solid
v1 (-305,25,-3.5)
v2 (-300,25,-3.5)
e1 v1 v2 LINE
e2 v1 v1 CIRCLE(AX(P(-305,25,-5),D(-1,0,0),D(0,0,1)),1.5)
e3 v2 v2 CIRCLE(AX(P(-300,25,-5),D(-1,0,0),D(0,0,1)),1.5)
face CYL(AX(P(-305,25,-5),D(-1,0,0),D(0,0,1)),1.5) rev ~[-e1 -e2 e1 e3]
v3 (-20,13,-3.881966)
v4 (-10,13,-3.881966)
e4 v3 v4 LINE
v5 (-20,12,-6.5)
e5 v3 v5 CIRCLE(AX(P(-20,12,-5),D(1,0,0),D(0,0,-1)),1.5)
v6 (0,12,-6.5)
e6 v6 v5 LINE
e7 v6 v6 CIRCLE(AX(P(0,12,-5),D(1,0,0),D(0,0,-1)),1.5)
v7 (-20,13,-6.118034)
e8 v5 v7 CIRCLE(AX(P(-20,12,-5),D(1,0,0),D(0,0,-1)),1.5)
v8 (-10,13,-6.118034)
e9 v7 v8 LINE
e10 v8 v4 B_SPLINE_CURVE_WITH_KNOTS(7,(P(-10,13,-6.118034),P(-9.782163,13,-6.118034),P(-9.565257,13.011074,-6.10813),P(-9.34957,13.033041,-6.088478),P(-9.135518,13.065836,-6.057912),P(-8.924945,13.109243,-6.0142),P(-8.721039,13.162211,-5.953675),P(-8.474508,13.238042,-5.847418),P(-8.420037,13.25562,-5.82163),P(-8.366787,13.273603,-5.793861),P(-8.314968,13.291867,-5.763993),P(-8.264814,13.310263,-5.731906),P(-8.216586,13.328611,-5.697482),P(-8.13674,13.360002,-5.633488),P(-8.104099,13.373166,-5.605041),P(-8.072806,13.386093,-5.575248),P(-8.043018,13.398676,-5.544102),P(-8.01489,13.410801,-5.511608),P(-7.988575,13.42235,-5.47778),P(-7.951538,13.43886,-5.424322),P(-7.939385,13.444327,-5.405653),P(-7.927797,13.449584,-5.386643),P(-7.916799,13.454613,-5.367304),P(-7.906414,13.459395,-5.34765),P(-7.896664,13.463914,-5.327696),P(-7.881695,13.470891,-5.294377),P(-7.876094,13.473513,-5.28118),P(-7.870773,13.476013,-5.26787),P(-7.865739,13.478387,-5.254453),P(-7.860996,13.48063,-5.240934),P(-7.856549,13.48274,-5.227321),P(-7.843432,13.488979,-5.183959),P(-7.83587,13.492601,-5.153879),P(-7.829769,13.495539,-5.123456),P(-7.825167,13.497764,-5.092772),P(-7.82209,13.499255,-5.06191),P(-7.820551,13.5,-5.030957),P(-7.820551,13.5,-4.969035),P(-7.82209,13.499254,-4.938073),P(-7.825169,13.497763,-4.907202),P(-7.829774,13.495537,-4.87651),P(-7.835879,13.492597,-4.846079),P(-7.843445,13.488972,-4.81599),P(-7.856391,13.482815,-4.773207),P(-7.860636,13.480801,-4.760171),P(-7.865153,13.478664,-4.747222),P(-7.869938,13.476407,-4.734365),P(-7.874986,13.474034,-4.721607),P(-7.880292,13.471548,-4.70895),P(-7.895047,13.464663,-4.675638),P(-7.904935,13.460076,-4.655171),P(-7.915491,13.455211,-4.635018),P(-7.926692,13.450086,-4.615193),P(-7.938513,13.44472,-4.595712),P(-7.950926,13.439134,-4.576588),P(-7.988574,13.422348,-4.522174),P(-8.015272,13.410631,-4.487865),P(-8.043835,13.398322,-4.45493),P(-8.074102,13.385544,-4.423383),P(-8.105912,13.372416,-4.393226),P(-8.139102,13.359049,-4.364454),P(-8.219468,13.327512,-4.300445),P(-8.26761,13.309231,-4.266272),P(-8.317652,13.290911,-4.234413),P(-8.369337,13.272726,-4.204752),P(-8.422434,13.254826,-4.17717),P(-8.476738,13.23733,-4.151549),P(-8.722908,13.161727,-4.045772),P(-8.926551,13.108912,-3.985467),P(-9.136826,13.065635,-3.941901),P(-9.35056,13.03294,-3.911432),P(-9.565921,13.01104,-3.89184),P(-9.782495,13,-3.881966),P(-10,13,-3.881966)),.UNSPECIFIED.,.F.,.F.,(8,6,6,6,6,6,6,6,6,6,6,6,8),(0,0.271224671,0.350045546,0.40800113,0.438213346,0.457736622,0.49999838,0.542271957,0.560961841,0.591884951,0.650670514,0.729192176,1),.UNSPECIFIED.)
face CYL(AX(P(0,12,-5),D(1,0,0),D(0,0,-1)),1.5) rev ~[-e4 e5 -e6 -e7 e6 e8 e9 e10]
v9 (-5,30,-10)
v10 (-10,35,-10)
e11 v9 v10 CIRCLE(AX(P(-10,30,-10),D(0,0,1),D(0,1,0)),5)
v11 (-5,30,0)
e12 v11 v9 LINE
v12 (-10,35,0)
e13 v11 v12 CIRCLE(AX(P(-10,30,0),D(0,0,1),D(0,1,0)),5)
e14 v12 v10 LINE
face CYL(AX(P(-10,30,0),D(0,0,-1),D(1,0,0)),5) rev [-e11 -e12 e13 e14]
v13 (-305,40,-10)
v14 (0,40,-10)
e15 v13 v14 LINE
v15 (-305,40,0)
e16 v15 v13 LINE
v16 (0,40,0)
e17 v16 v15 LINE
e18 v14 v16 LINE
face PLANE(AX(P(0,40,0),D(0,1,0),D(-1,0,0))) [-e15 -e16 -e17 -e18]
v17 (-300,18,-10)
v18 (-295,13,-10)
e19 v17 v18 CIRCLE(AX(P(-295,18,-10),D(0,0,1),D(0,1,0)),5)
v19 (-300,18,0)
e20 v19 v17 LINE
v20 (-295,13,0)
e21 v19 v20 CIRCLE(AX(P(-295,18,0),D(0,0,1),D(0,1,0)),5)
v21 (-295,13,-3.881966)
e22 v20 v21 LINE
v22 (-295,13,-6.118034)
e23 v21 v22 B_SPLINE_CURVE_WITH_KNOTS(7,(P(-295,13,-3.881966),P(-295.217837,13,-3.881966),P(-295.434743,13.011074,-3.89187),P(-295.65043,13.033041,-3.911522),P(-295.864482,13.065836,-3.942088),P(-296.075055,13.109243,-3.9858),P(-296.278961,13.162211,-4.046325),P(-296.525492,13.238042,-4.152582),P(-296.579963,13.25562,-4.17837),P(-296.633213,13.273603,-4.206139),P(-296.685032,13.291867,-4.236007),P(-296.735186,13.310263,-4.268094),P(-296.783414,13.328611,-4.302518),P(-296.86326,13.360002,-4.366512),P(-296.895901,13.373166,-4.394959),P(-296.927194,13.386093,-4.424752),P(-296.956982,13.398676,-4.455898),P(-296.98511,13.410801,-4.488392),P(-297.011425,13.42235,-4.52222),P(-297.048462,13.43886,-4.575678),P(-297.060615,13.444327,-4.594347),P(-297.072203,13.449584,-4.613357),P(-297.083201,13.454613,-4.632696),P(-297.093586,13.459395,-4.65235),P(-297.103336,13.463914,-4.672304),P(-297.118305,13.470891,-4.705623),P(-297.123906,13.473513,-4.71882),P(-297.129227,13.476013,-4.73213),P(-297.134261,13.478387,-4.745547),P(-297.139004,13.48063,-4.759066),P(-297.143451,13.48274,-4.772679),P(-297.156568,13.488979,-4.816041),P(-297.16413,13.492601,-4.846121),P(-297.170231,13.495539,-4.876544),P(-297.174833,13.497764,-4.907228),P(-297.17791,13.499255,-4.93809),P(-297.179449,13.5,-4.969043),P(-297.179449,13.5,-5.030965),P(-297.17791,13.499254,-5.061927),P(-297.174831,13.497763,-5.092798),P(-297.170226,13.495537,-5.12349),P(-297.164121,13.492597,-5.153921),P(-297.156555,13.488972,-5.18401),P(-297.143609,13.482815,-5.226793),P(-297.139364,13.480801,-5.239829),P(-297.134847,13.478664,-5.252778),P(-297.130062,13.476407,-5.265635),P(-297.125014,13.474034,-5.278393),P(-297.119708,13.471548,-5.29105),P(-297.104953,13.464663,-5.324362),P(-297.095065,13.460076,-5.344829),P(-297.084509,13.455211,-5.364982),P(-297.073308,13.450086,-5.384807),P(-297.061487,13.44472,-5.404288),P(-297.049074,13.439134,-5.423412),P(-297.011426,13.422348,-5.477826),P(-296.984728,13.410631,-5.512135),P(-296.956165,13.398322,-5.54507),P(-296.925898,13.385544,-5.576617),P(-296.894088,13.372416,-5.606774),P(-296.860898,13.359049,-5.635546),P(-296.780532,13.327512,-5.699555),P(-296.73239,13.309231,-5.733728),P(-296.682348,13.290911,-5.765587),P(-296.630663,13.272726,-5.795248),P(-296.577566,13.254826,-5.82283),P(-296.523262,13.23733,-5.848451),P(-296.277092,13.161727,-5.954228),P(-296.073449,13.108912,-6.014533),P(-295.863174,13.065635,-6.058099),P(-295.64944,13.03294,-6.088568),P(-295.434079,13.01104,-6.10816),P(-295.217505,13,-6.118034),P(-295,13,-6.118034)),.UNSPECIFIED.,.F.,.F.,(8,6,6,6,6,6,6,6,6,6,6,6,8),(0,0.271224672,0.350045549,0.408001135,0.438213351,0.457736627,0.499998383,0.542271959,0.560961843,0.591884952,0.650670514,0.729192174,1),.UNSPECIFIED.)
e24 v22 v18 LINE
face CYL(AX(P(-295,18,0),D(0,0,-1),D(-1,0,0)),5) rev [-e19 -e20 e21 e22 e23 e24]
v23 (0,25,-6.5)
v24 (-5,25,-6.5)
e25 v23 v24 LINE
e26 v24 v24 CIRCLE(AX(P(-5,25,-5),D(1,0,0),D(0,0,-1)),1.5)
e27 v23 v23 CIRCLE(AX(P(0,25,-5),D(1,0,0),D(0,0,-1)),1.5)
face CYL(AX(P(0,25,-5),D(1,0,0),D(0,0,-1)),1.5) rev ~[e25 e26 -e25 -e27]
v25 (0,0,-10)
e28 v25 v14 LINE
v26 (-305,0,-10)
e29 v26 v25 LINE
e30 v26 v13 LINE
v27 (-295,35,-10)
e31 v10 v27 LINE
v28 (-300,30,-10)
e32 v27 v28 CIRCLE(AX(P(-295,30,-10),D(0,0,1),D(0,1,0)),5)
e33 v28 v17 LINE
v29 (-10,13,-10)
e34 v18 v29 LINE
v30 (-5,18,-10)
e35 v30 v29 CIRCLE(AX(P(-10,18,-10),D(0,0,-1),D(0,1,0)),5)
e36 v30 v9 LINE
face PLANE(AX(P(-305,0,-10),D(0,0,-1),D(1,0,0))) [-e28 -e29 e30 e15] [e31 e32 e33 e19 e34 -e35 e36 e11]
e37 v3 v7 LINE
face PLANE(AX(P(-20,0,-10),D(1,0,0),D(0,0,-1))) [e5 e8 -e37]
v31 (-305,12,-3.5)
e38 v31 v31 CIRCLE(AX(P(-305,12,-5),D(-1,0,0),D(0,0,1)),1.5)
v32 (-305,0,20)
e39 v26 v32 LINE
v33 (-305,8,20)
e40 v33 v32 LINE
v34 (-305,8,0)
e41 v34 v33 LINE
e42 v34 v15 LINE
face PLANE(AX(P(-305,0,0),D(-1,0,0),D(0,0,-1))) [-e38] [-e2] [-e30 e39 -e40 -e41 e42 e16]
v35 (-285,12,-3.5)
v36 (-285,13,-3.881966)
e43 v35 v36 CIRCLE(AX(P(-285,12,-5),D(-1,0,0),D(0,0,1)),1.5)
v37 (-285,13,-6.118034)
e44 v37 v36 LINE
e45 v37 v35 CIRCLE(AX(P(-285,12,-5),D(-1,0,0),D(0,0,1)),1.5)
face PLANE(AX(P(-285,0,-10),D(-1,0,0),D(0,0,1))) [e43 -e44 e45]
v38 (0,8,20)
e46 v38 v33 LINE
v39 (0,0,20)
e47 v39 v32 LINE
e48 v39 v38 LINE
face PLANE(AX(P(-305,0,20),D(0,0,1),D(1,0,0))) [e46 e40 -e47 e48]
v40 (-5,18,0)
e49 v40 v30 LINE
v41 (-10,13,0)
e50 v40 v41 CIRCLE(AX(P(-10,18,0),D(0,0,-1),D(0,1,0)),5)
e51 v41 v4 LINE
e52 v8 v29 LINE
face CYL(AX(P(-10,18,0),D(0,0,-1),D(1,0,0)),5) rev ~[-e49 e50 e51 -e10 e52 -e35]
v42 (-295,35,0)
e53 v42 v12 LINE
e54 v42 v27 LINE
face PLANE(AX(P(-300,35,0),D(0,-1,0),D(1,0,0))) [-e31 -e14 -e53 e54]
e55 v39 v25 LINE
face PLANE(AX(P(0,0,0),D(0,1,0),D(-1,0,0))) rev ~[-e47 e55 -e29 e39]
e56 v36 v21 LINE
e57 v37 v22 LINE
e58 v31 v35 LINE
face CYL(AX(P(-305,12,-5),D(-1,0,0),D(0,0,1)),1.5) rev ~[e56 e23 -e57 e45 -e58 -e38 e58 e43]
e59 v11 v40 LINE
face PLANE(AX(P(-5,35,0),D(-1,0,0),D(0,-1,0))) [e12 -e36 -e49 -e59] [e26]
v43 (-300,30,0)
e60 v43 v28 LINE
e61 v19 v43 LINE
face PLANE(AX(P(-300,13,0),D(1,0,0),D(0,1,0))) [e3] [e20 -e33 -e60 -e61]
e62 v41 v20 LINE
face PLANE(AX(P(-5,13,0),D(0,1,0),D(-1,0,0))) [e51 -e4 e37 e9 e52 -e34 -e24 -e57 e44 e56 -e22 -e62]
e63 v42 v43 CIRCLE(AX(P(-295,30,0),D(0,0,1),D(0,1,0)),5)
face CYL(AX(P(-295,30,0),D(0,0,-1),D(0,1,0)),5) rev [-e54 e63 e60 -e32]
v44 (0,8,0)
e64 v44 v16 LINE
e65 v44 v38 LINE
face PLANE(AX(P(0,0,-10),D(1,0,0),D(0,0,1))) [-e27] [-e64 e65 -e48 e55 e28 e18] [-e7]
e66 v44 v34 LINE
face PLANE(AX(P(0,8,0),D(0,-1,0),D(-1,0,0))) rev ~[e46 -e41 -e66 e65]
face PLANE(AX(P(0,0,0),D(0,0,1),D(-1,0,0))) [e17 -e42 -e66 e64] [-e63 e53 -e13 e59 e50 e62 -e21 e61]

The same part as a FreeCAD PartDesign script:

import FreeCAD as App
import Part
import Sketcher

V = App.Vector


def edges_at(feature, points):
    """Names of the edges that pass closest to the given points."""
    edges = feature.Shape.Edges
    near = lambda p: min(range(len(edges)), key=lambda i: edges[i].distToShape(Part.Vertex(*p))[0])
    return sorted({f"Edge{near(p) + 1}" for p in points})

doc = App.newDocument("Part")
body = doc.addObject("PartDesign::Body", "Body")

sketch1 = body.newObject("Sketcher::SketchObject", "Sketch")
sketch1.AttachmentSupport = (doc.getObject("XZ_Plane"), [""])
sketch1.MapMode = "FlatFace"
sketch1.addGeometry([
    Part.LineSegment(V(-305, 0, 0), V(0, 0, 0)),
    Part.LineSegment(V(0, 0, 0), V(0, -10, 0)),
    Part.LineSegment(V(0, -10, 0), V(-305, -10, 0)),
    Part.LineSegment(V(-305, -10, 0), V(-305, 0, 0)),
], False)
sketch1.addConstraint([
    Sketcher.Constraint("Coincident", 0, 2, 1, 1),
    Sketcher.Constraint("Coincident", 1, 2, 2, 1),
    Sketcher.Constraint("Coincident", 2, 2, 3, 1),
    Sketcher.Constraint("Coincident", 3, 2, 0, 1),
    Sketcher.Constraint("Horizontal", 0),
    Sketcher.Constraint("Vertical", 1),
    Sketcher.Constraint("Horizontal", 2),
    Sketcher.Constraint("Vertical", 3),
    Sketcher.Constraint("Coincident", 0, 2, -1, 1),
    Sketcher.Constraint("DistanceX", 0, 1, 0, 2, 305.0),
    Sketcher.Constraint("DistanceY", 1, 2, 1, 1, 10.0),
])
pad1 = body.newObject("PartDesign::Pad", "Pad")
pad1.Profile = sketch1
pad1.Length = 40
pad1.Reversed = True

sketch2 = body.newObject("Sketcher::SketchObject", "Sketch001")
sketch2.AttachmentSupport = (doc.getObject("XY_Plane"), [""])
sketch2.MapMode = "FlatFace"
sketch2.addGeometry([
    Part.LineSegment(V(-305, 0, 0), V(0, 0, 0)),
    Part.LineSegment(V(0, 0, 0), V(0, 8, 0)),
    Part.LineSegment(V(0, 8, 0), V(-305, 8, 0)),
    Part.LineSegment(V(-305, 8, 0), V(-305, 0, 0)),
], False)
sketch2.addConstraint([
    Sketcher.Constraint("Coincident", 0, 2, 1, 1),
    Sketcher.Constraint("Coincident", 1, 2, 2, 1),
    Sketcher.Constraint("Coincident", 2, 2, 3, 1),
    Sketcher.Constraint("Coincident", 3, 2, 0, 1),
    Sketcher.Constraint("Horizontal", 0),
    Sketcher.Constraint("Vertical", 1),
    Sketcher.Constraint("Horizontal", 2),
    Sketcher.Constraint("Vertical", 3),
    Sketcher.Constraint("Coincident", 0, 2, -1, 1),
    Sketcher.Constraint("DistanceY", 1, 1, 1, 2, 8.0),
    Sketcher.Constraint("DistanceX", 0, 1, 0, 2, 305.0),
])
pad2 = body.newObject("PartDesign::Pad", "Pad001")
pad2.Profile = sketch2
pad2.Length = 20

sketch3 = body.newObject("Sketcher::SketchObject", "Sketch002")
sketch3.AttachmentSupport = (doc.getObject("XY_Plane"), [""])
sketch3.MapMode = "FlatFace"
sketch3.addGeometry([
    Part.LineSegment(V(-300, 13, 0), V(-5, 13, 0)),
    Part.LineSegment(V(-5, 13, 0), V(-5, 35, 0)),
    Part.LineSegment(V(-5, 35, 0), V(-300, 35, 0)),
    Part.LineSegment(V(-300, 35, 0), V(-300, 13, 0)),
], False)
sketch3.addConstraint([
    Sketcher.Constraint("Coincident", 0, 2, 1, 1),
    Sketcher.Constraint("Coincident", 1, 2, 2, 1),
    Sketcher.Constraint("Coincident", 2, 2, 3, 1),
    Sketcher.Constraint("Coincident", 3, 2, 0, 1),
    Sketcher.Constraint("Horizontal", 0),
    Sketcher.Constraint("Vertical", 1),
    Sketcher.Constraint("Horizontal", 2),
    Sketcher.Constraint("Vertical", 3),
    Sketcher.Constraint("DistanceX", 0, 2, -1, 1, 5.0),
    Sketcher.Constraint("DistanceX", 0, 1, 0, 2, 295.0),
    Sketcher.Constraint("DistanceY", 1, 1, 1, 2, 22.0),
    Sketcher.Constraint("DistanceY", -1, 1, 0, 2, 13.0),
])
pocket1 = body.newObject("PartDesign::Pocket", "Pocket")
pocket1.Profile = sketch3
pocket1.Length = 20
doc.recompute()

fillet = body.newObject("PartDesign::Fillet", "Fillet")
fillet.Base = (pocket1, edges_at(pocket1, [
    (-300, 13, -5),
    (-300, 35, -5),
    (-5, 13, -5),
    (-5, 35, -5),
]))
fillet.Radius = 5

sketch4 = body.newObject("Sketcher::SketchObject", "Sketch003")
sketch4.AttachmentSupport = (doc.getObject("YZ_Plane"), [""])
sketch4.MapMode = "FlatFace"
sketch4.AttachmentOffset = App.Placement(V(0, 0, -305), App.Rotation())
sketch4.addGeometry([
    Part.Circle(V(25, -5, 0), V(0, 0, 1), 1.5),
    Part.Circle(V(12, -5, 0), V(0, 0, 1), 1.5),
], False)
sketch4.addConstraint([
    Sketcher.Constraint("Equal", 0, 1),
    Sketcher.Constraint("Horizontal", 0, 3, 1, 3),
    Sketcher.Constraint("Diameter", 0, 3.0),
    Sketcher.Constraint("DistanceY", 0, 3, -1, 1, 5.0),
    Sketcher.Constraint("DistanceX", -1, 1, 0, 3, 25.0),
    Sketcher.Constraint("DistanceX", -1, 1, 1, 3, 12.0),
])
pocket2 = body.newObject("PartDesign::Pocket", "Pocket001")
pocket2.Profile = sketch4
pocket2.Length = 20
pocket2.Reversed = True

sketch5 = body.newObject("Sketcher::SketchObject", "Sketch004")
sketch5.AttachmentSupport = (doc.getObject("YZ_Plane"), [""])
sketch5.MapMode = "FlatFace"
sketch5.addGeometry([
    Part.Circle(V(25, -5, 0), V(0, 0, 1), 1.5),
    Part.Circle(V(12, -5, 0), V(0, 0, 1), 1.5),
], False)
sketch5.addConstraint([
    Sketcher.Constraint("Equal", 0, 1),
    Sketcher.Constraint("Horizontal", 0, 3, 1, 3),
    Sketcher.Constraint("Diameter", 0, 3.0),
    Sketcher.Constraint("DistanceY", 0, 3, -1, 1, 5.0),
    Sketcher.Constraint("DistanceX", -1, 1, 0, 3, 25.0),
    Sketcher.Constraint("DistanceX", -1, 1, 1, 3, 12.0),
])
pocket3 = body.newObject("PartDesign::Pocket", "Pocket002")
pocket3.Profile = sketch5
pocket3.Length = 20

doc.recompute()
